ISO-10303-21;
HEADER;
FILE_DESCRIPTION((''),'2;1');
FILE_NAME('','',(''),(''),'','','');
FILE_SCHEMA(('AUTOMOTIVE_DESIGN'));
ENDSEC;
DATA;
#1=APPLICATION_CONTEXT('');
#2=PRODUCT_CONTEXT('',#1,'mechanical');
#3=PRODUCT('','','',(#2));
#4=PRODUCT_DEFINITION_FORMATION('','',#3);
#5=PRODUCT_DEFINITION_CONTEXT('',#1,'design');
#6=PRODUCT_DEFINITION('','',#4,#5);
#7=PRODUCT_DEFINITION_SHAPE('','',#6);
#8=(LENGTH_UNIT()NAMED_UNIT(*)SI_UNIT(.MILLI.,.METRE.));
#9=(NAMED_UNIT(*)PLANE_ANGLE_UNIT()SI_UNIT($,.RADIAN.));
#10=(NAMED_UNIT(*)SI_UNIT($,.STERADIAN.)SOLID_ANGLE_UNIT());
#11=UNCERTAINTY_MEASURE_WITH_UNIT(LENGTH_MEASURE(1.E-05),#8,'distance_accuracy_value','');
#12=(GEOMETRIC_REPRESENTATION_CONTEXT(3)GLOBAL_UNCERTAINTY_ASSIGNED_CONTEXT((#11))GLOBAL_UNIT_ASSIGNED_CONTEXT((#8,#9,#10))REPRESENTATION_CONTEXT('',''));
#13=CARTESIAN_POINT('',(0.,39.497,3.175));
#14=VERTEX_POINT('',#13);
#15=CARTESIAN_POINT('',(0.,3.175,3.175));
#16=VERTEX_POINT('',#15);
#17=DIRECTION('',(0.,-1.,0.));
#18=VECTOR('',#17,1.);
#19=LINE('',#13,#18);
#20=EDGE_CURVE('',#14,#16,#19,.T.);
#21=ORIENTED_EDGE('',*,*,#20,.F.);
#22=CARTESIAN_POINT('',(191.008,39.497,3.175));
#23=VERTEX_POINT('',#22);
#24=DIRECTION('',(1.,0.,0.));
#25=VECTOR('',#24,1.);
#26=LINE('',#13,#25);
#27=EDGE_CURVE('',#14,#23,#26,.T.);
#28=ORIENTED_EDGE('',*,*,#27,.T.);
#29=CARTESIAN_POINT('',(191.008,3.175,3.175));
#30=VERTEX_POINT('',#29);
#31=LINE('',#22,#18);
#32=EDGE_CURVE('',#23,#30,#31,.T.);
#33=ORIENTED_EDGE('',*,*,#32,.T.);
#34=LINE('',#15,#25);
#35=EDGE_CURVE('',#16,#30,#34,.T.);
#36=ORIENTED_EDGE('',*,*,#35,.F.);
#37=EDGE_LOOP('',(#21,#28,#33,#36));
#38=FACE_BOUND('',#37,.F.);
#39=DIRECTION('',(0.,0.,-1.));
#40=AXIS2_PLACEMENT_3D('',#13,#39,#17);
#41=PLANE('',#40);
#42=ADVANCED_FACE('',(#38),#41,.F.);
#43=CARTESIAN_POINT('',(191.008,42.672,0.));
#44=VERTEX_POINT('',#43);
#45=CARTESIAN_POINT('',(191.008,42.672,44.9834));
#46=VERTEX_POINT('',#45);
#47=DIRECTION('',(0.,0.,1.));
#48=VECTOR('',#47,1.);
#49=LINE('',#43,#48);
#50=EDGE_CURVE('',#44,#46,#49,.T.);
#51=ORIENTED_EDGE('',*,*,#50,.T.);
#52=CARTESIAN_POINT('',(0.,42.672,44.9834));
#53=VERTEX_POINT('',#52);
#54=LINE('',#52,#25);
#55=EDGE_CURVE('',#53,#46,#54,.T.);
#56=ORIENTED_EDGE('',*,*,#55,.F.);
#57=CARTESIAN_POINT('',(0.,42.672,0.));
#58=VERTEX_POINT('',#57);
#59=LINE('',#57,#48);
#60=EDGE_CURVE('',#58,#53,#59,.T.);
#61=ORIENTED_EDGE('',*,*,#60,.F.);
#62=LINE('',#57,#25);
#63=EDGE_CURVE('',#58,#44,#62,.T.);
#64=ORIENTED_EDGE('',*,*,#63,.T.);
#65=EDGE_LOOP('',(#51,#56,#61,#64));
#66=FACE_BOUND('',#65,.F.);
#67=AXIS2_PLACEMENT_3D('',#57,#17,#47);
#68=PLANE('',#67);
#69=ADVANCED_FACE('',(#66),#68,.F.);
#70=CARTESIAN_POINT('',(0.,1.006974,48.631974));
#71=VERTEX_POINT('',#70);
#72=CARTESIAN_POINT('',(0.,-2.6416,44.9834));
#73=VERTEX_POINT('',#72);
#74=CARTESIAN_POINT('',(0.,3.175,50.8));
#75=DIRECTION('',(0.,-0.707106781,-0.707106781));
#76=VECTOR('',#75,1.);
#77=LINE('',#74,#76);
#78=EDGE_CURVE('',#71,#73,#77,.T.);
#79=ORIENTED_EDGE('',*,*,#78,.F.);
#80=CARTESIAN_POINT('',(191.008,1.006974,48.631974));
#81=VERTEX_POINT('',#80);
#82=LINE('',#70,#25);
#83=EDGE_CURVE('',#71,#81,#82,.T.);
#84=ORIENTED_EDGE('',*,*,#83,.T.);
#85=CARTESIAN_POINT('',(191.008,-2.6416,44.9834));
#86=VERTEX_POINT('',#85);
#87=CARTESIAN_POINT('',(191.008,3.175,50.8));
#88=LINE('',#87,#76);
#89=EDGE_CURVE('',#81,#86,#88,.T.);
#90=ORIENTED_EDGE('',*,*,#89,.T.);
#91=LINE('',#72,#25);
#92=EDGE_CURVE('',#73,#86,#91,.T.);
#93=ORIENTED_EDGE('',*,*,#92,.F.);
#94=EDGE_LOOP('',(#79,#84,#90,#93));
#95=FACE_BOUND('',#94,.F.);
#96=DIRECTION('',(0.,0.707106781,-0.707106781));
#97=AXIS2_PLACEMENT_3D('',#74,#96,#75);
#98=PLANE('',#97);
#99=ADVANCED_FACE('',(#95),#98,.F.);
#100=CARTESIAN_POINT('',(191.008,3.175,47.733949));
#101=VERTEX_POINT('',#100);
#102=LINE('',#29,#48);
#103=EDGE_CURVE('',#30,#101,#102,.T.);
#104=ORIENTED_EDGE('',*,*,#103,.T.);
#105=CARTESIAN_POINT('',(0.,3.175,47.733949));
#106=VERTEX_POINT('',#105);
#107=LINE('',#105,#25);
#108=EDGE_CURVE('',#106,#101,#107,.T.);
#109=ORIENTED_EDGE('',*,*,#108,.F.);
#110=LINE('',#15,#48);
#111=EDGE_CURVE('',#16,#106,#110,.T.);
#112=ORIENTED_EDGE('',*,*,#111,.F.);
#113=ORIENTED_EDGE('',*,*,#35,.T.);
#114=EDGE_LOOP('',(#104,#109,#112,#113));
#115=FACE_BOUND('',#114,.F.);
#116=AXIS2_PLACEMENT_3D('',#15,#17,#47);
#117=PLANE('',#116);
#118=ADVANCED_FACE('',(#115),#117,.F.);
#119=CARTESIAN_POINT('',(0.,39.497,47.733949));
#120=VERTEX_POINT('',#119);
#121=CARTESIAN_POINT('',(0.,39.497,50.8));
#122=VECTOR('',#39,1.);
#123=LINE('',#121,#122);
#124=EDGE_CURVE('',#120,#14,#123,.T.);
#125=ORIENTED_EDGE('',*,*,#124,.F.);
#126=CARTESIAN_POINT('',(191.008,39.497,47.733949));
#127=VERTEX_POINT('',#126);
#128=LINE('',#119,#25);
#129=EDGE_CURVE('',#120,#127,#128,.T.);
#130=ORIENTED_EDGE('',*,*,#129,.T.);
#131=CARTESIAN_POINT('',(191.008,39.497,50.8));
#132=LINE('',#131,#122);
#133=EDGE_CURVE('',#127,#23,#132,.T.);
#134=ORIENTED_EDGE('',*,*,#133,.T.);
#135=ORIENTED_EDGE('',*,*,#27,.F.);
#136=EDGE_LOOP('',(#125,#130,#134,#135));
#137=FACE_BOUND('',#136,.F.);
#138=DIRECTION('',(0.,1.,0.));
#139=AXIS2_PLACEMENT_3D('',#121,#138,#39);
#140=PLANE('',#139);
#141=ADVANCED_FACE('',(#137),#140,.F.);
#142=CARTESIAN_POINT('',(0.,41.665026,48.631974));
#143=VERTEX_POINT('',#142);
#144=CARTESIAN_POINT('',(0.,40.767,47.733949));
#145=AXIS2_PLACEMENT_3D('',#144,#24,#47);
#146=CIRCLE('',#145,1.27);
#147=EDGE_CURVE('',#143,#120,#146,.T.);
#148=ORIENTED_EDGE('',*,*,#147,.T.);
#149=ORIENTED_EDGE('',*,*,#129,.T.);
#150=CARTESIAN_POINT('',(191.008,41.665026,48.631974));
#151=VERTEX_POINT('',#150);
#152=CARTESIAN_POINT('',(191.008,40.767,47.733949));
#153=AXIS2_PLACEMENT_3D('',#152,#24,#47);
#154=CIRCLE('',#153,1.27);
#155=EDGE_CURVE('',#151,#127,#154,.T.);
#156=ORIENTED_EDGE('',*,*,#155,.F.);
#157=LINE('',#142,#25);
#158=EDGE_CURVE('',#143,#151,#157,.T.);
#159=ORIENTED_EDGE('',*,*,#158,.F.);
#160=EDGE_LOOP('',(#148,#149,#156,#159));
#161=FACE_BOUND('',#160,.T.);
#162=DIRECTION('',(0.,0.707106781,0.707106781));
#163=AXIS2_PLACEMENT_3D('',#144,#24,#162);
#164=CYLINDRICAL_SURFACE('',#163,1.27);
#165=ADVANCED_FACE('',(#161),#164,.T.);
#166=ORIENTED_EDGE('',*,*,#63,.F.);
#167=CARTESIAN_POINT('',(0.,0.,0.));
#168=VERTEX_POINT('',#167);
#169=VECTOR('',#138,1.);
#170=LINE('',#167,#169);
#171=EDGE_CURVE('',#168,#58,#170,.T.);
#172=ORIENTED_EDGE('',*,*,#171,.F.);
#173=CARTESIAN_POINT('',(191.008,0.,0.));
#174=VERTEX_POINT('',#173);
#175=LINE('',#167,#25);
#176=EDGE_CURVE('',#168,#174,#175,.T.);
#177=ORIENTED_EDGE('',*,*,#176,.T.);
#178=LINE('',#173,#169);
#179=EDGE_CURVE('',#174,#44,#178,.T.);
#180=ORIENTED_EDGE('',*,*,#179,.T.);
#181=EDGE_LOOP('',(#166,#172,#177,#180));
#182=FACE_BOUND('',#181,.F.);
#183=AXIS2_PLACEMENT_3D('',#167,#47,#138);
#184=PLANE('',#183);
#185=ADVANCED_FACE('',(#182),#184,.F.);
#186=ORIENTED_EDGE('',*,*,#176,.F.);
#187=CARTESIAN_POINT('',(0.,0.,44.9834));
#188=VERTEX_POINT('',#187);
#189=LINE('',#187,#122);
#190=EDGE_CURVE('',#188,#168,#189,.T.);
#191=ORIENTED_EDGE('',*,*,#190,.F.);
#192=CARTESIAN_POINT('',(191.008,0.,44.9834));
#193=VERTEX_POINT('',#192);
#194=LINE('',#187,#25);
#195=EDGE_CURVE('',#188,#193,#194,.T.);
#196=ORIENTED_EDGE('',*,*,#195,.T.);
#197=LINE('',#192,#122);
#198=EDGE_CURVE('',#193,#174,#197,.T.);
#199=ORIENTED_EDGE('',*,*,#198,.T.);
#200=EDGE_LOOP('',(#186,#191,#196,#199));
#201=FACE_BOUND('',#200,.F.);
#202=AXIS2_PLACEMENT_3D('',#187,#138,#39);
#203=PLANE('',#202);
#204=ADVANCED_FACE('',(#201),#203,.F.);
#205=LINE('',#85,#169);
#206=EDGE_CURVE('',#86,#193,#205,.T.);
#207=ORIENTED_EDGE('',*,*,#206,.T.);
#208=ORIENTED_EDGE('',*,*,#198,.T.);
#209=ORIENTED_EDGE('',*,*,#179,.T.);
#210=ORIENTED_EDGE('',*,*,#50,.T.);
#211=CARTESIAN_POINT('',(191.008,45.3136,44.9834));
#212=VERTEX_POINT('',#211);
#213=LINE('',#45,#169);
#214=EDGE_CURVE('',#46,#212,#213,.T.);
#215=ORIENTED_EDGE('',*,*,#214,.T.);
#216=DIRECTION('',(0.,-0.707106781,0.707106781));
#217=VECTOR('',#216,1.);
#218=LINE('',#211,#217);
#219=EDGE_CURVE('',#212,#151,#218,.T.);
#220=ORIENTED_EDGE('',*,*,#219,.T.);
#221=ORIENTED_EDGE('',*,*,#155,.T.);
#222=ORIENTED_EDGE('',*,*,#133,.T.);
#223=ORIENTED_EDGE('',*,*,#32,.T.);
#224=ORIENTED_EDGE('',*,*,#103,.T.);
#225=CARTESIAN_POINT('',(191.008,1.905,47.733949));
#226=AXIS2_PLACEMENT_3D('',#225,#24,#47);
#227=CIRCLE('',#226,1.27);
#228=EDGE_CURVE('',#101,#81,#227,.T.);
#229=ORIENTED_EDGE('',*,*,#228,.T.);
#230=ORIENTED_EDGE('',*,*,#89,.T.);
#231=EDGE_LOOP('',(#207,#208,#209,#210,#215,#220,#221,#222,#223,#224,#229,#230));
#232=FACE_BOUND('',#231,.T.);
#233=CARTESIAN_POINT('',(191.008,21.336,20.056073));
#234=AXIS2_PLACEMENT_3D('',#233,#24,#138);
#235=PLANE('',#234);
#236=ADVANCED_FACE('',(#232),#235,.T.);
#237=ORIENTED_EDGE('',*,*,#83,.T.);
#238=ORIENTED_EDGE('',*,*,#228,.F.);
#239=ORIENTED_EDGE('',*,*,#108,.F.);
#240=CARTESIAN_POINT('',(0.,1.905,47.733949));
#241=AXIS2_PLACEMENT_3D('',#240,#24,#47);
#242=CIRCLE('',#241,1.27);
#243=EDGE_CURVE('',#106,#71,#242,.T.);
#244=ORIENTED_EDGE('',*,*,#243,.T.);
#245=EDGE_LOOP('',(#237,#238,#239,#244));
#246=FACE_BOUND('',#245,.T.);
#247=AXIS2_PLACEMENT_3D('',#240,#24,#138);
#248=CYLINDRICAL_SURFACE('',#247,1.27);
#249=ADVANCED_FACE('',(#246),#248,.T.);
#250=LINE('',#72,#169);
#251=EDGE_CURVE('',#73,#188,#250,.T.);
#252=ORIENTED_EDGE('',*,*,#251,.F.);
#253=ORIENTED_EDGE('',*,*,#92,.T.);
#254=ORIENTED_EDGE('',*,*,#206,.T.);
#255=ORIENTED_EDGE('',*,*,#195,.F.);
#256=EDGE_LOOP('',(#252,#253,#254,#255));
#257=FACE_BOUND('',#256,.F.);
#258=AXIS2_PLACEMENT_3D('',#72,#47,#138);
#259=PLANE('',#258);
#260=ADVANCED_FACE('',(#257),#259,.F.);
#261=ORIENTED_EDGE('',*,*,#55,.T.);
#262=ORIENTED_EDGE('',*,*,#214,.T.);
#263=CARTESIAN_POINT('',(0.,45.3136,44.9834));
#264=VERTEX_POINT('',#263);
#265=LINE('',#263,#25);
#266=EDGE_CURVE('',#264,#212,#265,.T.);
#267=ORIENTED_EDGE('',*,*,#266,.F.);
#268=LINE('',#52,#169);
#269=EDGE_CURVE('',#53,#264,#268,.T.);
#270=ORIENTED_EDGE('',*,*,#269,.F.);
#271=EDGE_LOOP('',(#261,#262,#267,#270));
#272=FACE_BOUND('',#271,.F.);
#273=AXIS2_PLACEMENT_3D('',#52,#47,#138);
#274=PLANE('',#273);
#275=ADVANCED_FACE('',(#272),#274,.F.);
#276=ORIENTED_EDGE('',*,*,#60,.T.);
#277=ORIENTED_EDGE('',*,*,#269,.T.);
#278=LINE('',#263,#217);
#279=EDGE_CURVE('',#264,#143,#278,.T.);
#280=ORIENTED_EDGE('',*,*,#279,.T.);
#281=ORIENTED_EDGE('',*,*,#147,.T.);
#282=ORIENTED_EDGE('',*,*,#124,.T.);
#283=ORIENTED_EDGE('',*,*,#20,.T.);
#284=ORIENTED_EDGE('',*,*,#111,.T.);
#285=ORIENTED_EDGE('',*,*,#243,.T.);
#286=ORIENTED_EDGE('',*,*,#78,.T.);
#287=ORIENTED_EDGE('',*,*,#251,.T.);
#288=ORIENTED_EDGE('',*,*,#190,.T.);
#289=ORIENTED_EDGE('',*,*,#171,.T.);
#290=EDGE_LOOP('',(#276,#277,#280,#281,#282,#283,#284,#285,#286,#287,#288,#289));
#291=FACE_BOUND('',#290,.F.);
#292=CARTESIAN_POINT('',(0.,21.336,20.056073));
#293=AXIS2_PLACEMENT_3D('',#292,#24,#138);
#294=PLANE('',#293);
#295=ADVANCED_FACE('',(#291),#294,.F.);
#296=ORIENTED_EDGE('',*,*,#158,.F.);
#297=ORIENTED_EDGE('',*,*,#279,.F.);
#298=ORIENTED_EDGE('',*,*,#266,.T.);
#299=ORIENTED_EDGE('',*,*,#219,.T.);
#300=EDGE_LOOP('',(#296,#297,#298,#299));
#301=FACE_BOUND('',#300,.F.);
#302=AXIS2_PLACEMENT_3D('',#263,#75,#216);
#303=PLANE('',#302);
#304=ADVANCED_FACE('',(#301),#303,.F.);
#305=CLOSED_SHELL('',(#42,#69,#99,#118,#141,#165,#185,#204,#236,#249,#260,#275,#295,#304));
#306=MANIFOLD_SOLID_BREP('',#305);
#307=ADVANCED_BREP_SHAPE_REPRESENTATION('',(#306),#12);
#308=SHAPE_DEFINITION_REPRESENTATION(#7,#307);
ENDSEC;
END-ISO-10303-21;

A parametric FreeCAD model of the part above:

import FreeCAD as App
import Part
import Sketcher
from FreeCAD import Vector
Q = App.Units.Quantity


def edges_at(feature, points):
    """Names of the edges that pass closest to the given points."""
    edges = feature.Shape.Edges
    near = lambda p: min(range(len(edges)), key=lambda i: edges[i].distToShape(Part.Vertex(*p))[0])
    return sorted({f"Edge{near(p) + 1}" for p in points})


def add_polygon(sketch, points):
    """Adds a closed chain of lines whose ends are joined by coincident constraints."""
    first, n = sketch.GeometryCount, len(points)
    for a, b in zip(points, points[1:] + points[:1]):
        sketch.addGeometry(Part.LineSegment(App.Vector(*a, 0), App.Vector(*b, 0)), False)
    for i in range(n):
        sketch.addConstraint(Sketcher.Constraint("Coincident", first + i, 2, first + (i + 1) % n, 1))

doc = App.newDocument("Part")
body = doc.addObject("PartDesign::Body", "Body")

# Sketch on YZ plane
sketch1 = body.newObject("Sketcher::SketchObject", "Sketch")
sketch1.AttachmentSupport = (doc.getObject("YZ_Plane"), [""])
sketch1.MapMode = "FlatFace"
add_polygon(sketch1, [(0, 45), (0, 0), (42.7, 0), (42.7, 45), (45.3, 45), (39.5, 50.8), (39.5, 3.2), (3.2, 3.2), (3.2, 50.8), (-2.6, 45)])  # lines 0-9
sketch1.addConstraint([
    Sketcher.Constraint("Vertical", 0),
    Sketcher.Constraint("Horizontal", 1),
    Sketcher.Constraint("Vertical", 2),
    Sketcher.Constraint("Horizontal", 3),
    Sketcher.Constraint("Vertical", 5),
    Sketcher.Constraint("Horizontal", 6),
    Sketcher.Constraint("Vertical", 7),
    Sketcher.Constraint("Horizontal", 9),
    Sketcher.Constraint("Coincident", 0, 2, -1, 1),
    Sketcher.Constraint("Perpendicular", 4, 8),
    Sketcher.Constraint("Horizontal", 4, 2, 7, 2),
    Sketcher.Constraint("Horizontal", 3, 2, 8, 2),
    Sketcher.Constraint("Equal", 3, 9),
    Sketcher.Constraint("Equal", 4, 8),
    Sketcher.Constraint("DistanceY", -1, 1, 4, 2, Q("2 in")),
    Sketcher.Constraint("DistanceX", 1, 1, 1, 2, Q("1.68 in")),
    Sketcher.Constraint("DistanceX", 6, 2, 6, 1, Q("1.43 in")),
    Sketcher.Constraint("DistanceX", 3, 1, 3, 2, Q("0.104 in")),
    Sketcher.Constraint("DistanceY", 5, 2, 5, 1, Q("1.875 in")),
])
pad1 = body.newObject("PartDesign::Pad", "Pad")
pad1.Profile = sketch1
pad1.Length = Q("7.52 in")
doc.recompute()

fillet = body.newObject("PartDesign::Fillet", "Fillet")
fillet.Base = (pad1, edges_at(pad1, [(95.504, 3.175, 50.8), (95.504, 39.497, 50.8)]))
fillet.Radius = Q("0.05 in")

doc.recompute()
